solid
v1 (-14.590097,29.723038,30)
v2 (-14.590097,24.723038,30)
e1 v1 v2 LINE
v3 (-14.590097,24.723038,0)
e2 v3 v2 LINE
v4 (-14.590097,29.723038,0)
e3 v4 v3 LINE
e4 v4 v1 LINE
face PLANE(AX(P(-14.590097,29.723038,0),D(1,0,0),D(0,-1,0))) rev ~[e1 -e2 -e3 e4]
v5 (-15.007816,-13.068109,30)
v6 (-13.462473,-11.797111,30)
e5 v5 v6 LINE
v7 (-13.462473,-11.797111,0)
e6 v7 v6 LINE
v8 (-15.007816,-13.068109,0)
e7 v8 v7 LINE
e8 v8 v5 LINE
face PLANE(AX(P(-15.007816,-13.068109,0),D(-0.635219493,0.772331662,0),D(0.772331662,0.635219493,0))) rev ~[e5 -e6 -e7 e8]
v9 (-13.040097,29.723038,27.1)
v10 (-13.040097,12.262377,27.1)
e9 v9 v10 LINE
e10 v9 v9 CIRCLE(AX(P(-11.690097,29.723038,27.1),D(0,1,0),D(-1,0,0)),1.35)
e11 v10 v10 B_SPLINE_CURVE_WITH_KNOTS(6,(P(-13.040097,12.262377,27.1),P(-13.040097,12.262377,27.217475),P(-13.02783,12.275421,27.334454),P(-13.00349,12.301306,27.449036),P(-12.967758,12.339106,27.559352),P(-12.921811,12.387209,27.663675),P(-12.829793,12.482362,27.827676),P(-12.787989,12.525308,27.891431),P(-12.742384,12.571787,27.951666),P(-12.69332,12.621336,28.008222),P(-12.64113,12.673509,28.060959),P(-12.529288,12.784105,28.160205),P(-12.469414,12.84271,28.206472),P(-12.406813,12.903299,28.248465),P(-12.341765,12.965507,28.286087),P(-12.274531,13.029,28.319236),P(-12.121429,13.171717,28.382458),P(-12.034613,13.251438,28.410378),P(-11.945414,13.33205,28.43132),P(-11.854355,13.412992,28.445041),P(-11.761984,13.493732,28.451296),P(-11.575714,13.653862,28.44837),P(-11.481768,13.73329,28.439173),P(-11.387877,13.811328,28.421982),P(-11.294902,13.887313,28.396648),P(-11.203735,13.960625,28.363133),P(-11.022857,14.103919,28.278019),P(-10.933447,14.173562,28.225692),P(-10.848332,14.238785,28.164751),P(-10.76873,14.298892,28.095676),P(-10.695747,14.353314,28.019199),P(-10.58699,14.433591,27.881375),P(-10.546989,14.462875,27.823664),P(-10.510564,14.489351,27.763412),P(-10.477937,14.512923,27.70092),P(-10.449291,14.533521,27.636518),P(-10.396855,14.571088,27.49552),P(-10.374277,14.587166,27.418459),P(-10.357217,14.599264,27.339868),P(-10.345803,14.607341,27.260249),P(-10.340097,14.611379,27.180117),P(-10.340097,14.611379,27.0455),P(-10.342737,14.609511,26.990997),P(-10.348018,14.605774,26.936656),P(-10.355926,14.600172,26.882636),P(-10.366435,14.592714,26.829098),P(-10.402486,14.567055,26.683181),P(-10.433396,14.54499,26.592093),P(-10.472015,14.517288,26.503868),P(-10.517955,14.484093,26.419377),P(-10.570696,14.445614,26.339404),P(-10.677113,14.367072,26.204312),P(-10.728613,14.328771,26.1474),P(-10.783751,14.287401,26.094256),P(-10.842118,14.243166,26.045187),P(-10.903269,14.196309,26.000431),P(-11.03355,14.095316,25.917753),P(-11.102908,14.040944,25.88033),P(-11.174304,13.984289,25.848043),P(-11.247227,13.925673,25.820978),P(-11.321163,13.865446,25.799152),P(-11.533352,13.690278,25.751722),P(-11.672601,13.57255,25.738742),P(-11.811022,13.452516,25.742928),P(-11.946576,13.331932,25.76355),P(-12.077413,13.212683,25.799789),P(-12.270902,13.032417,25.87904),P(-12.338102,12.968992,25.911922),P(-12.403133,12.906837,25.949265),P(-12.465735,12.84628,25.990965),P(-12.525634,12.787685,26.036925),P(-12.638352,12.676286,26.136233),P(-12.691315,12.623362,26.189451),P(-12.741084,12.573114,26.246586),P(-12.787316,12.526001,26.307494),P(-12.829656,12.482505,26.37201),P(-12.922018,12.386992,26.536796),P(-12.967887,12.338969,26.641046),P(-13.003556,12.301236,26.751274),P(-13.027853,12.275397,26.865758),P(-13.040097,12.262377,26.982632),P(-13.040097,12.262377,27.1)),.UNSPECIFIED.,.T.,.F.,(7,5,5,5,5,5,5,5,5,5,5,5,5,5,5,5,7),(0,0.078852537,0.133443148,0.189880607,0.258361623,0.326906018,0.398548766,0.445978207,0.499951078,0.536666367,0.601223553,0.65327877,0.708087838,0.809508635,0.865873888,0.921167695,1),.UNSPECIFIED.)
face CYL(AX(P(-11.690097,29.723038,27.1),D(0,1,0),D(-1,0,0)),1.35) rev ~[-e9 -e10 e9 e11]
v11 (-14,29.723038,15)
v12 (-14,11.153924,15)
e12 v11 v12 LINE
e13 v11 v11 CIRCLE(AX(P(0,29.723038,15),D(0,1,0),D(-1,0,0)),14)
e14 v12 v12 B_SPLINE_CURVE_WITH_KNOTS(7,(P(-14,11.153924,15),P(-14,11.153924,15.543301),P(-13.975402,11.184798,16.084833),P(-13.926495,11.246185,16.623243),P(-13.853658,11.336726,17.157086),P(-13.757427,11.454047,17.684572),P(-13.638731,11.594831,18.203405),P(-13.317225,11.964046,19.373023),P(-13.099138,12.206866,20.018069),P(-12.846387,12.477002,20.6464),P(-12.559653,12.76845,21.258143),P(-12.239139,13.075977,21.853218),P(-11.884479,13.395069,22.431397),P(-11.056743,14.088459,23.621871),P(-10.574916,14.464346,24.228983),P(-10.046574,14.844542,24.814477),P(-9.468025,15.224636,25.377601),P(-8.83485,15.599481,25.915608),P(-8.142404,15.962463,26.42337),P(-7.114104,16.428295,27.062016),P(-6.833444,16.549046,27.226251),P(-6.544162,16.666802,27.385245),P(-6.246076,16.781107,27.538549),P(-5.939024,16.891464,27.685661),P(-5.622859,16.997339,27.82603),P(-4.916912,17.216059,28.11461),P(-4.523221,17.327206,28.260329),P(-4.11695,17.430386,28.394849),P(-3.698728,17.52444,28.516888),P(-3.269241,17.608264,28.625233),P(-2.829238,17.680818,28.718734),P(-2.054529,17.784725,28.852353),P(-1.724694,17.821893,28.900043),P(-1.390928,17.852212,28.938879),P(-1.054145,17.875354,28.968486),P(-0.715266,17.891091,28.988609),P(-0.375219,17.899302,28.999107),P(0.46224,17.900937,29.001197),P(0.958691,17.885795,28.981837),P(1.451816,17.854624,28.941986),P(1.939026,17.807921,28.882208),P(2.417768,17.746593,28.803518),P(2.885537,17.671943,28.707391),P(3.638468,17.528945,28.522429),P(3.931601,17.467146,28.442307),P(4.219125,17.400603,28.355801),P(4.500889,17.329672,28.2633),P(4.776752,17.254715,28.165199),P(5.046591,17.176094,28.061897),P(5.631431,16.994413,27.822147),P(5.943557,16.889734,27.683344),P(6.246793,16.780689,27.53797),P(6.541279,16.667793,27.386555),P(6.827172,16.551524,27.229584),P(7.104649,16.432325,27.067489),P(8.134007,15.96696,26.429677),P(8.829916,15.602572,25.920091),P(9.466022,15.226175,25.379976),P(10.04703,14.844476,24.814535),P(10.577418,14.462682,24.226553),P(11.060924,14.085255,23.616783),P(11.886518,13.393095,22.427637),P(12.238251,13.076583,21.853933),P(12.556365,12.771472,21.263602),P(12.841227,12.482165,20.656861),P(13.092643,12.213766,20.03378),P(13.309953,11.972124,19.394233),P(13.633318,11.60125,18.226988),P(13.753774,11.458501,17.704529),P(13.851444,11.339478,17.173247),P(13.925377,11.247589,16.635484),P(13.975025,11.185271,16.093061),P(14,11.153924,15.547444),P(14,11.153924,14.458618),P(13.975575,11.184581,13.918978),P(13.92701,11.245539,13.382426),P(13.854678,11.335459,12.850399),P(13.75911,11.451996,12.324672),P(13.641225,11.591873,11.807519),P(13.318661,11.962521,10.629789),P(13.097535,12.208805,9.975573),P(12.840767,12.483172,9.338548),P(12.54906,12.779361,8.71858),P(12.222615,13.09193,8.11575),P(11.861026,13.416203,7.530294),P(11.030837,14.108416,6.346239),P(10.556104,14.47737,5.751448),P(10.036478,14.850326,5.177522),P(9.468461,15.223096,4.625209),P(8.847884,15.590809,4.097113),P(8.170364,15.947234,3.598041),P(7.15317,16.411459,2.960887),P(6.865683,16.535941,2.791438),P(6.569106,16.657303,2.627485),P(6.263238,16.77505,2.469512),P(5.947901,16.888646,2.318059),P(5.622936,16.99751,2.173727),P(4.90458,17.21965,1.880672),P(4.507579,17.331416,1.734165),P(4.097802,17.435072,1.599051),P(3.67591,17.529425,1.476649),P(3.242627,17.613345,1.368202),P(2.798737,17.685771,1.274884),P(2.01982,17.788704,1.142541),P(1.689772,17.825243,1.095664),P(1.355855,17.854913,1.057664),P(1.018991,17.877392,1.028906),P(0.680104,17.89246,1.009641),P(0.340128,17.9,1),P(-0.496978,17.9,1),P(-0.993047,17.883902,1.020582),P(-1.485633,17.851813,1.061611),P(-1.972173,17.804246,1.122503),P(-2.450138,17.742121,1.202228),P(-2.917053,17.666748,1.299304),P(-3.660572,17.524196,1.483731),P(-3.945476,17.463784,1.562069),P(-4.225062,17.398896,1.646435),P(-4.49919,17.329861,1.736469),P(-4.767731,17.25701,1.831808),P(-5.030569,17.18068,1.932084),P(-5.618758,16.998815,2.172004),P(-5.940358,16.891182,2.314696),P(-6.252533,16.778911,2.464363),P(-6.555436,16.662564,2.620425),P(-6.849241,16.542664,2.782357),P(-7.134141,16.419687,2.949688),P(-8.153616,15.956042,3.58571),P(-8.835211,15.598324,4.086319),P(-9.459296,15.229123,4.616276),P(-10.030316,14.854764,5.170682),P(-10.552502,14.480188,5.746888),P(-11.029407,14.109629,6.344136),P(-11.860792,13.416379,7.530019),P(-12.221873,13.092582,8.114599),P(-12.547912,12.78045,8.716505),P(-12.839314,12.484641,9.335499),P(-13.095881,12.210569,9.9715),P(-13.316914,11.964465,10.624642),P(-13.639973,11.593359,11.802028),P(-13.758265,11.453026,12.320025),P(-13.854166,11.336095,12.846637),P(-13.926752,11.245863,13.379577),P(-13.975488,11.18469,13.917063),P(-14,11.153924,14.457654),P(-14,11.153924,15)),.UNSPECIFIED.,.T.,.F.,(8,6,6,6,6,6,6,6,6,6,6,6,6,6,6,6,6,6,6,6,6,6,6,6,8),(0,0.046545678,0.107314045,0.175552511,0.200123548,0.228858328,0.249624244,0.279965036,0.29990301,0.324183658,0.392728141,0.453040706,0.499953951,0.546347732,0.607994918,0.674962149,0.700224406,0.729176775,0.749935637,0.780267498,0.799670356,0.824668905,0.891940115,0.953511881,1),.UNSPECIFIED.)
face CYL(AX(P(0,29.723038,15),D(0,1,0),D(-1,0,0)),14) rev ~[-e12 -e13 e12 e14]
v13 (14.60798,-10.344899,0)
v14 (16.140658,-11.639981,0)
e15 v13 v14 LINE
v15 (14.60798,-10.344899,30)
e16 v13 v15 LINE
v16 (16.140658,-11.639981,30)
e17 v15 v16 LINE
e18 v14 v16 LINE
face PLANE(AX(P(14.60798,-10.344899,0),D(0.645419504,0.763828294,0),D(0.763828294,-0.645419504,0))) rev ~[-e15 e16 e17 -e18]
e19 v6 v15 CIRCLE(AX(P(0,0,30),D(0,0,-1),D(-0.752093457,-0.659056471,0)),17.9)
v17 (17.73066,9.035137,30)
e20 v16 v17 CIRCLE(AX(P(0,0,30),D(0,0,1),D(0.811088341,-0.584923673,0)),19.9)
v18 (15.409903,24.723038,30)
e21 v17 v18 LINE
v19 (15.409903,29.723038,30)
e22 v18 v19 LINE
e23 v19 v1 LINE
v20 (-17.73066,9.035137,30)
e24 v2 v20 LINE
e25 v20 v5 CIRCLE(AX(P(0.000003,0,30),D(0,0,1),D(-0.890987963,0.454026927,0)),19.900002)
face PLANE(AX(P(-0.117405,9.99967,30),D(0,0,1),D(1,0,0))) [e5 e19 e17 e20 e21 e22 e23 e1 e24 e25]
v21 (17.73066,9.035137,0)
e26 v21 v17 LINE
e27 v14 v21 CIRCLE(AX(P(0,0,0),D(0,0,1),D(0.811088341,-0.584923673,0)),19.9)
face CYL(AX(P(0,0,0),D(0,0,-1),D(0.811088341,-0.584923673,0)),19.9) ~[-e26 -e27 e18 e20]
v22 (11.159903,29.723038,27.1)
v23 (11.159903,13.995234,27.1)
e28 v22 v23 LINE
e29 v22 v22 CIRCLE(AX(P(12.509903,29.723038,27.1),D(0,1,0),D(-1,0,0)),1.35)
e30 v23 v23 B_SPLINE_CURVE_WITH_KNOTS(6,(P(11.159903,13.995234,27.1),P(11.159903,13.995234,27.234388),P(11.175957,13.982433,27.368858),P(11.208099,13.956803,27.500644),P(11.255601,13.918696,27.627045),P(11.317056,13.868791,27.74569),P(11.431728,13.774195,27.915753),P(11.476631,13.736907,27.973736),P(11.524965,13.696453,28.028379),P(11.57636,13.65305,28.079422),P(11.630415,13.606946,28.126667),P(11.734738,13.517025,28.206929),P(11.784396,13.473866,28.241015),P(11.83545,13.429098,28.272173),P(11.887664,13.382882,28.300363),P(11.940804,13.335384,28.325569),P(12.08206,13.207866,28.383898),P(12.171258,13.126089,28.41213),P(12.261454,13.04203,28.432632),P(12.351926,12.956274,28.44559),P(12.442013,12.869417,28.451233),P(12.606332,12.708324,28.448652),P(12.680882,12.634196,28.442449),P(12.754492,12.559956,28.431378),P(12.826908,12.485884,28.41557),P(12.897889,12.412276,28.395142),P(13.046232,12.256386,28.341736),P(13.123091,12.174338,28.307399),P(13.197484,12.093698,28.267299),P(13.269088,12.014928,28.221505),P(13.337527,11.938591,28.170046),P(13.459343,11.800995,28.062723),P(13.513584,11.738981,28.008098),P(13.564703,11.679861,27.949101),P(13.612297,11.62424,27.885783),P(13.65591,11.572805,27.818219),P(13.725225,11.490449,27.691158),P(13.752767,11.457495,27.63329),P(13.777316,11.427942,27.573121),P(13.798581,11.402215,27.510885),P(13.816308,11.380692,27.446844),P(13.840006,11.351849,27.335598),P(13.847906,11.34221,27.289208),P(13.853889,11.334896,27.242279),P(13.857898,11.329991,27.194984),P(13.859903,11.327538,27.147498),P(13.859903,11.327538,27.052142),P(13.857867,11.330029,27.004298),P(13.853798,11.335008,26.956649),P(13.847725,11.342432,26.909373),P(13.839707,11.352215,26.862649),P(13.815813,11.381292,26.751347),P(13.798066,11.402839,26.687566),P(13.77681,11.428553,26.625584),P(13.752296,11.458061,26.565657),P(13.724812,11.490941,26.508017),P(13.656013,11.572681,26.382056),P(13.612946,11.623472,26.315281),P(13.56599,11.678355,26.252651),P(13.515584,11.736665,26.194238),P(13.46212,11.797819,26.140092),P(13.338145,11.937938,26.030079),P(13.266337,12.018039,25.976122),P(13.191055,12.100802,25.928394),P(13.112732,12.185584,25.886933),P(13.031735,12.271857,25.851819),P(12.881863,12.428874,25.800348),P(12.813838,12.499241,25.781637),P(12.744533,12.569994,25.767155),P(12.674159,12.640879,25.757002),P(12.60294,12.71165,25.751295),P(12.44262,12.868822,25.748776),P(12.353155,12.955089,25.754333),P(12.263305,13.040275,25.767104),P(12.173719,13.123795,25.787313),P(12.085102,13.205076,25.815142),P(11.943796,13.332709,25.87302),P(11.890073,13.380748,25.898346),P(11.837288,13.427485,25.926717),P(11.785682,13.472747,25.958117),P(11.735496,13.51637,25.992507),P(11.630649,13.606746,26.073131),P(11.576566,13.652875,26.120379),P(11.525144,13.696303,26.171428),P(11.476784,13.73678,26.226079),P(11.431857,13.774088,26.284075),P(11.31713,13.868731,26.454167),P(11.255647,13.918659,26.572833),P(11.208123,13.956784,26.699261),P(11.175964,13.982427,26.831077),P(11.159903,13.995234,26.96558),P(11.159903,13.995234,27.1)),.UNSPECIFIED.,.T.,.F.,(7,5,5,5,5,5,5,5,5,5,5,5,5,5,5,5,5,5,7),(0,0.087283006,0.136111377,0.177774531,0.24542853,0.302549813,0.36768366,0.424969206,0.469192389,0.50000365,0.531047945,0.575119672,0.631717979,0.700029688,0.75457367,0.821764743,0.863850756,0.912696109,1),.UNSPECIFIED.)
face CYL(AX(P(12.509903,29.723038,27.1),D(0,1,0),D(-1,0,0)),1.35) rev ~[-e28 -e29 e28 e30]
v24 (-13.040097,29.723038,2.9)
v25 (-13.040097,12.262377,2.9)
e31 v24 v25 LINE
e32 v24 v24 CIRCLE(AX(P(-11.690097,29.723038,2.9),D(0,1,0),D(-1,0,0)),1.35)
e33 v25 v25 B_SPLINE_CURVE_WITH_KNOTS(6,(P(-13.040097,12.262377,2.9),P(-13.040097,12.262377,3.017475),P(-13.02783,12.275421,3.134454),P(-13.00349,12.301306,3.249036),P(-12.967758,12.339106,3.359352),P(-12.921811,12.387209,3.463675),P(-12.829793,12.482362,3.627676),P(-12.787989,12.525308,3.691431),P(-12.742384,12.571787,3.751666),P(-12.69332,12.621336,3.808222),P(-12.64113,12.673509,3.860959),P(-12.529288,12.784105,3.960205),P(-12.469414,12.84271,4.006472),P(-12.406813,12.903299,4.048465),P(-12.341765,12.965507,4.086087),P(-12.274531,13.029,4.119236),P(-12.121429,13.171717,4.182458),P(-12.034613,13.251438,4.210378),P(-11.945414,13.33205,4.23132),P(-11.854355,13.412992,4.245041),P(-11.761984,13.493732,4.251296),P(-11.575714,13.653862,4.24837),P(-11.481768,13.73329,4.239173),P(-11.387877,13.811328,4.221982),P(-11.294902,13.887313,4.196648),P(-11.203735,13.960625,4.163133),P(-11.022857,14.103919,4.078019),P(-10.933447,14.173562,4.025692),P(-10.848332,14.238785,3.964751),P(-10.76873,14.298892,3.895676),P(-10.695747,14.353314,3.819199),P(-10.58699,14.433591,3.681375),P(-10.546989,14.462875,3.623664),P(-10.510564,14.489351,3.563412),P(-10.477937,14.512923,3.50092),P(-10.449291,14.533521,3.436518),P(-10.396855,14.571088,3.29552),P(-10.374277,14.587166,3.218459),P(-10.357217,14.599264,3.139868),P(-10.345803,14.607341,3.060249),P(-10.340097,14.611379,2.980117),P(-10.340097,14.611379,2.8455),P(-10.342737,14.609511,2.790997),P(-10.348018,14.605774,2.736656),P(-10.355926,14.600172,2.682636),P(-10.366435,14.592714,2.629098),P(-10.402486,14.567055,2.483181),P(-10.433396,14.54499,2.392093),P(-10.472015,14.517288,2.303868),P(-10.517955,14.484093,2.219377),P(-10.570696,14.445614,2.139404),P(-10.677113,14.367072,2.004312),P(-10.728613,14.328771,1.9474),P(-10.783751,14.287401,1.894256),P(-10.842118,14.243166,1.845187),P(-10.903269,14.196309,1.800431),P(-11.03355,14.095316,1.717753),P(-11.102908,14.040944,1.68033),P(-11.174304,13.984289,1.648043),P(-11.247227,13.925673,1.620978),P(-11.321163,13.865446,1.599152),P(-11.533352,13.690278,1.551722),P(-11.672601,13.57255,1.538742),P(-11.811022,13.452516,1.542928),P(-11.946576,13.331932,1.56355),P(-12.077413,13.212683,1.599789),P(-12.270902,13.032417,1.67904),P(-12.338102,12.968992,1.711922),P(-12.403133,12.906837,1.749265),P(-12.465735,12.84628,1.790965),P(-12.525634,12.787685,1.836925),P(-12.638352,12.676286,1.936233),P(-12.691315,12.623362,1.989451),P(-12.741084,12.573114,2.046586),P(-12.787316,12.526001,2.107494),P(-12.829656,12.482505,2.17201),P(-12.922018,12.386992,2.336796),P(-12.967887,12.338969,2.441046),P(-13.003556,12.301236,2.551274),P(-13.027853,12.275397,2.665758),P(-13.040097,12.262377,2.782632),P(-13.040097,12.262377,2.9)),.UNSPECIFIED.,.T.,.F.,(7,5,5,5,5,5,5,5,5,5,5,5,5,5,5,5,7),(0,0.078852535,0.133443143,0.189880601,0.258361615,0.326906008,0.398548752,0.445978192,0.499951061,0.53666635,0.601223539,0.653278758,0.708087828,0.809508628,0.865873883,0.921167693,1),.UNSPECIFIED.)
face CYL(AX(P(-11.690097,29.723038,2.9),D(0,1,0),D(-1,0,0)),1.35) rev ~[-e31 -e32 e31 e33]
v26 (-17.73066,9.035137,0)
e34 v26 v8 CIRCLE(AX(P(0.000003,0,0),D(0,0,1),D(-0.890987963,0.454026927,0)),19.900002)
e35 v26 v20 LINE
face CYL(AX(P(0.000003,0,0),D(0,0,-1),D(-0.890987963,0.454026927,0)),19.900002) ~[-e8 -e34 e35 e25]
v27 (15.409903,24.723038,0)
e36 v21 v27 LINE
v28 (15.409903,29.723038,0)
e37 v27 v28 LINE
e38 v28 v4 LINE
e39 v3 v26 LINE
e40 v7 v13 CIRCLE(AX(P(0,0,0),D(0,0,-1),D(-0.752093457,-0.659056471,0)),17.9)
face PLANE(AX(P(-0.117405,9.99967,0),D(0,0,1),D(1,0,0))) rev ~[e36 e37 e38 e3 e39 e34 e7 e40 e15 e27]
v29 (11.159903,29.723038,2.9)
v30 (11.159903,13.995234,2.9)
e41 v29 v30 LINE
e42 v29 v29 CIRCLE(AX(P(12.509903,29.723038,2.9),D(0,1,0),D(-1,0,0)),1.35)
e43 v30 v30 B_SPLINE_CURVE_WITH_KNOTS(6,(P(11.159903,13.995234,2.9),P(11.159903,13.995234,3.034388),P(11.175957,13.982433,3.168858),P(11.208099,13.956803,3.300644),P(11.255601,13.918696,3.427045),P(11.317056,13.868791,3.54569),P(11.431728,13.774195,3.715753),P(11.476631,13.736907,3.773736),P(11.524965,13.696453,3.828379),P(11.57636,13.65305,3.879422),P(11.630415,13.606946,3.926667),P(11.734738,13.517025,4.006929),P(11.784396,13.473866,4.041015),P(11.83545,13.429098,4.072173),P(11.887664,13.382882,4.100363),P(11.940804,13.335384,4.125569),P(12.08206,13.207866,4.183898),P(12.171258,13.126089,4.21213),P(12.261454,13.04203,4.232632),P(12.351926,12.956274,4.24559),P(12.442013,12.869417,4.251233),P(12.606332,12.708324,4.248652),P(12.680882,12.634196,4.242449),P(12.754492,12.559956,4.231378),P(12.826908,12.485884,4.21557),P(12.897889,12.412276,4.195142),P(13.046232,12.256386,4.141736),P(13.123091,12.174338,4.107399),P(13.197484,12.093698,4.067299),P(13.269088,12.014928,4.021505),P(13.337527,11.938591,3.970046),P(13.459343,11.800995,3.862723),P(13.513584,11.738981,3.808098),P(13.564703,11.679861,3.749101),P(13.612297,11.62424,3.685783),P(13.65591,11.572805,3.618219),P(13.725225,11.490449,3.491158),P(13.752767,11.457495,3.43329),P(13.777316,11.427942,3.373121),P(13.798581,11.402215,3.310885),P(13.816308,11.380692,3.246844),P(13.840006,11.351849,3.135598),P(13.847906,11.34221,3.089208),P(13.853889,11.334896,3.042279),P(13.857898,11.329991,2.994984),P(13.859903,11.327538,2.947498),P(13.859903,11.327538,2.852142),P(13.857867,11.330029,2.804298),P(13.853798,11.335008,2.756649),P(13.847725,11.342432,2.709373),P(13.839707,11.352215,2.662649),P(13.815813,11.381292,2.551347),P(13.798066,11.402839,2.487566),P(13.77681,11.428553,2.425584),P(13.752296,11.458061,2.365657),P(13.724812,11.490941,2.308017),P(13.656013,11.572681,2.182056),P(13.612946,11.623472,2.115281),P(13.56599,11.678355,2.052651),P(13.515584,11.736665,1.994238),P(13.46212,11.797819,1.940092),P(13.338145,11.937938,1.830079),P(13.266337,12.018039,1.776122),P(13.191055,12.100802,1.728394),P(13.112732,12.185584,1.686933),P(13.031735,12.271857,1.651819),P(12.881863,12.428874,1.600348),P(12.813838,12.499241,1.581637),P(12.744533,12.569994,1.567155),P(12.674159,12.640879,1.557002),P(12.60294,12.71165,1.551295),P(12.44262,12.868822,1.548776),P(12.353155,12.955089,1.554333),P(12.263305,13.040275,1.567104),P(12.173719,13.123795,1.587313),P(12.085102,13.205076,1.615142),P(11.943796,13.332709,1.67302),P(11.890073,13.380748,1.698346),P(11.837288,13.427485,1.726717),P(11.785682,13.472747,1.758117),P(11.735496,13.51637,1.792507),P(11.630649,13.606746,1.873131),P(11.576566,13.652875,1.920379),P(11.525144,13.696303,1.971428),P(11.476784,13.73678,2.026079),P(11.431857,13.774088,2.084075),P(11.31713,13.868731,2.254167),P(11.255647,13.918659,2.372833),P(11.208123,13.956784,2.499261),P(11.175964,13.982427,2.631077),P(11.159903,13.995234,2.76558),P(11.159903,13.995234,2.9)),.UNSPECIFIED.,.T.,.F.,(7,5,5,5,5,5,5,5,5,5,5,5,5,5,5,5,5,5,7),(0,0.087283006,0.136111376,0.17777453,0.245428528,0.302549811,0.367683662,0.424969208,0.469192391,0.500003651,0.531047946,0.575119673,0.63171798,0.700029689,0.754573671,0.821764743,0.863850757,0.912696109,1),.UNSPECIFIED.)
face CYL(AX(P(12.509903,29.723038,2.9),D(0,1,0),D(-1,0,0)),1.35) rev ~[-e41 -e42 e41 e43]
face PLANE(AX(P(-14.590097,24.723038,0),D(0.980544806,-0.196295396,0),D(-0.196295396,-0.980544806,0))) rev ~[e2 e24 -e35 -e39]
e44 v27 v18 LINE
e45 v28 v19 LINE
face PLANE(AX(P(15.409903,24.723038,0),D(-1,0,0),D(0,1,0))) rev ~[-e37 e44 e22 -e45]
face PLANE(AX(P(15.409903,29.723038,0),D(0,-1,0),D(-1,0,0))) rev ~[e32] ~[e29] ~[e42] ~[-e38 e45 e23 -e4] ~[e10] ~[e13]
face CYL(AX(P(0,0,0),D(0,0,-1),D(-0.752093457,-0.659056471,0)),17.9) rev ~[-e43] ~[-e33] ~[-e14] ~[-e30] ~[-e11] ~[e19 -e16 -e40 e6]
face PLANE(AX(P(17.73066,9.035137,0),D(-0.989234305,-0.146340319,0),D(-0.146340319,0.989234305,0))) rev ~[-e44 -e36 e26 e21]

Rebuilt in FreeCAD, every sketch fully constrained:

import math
import FreeCAD as App
import Part
import Sketcher

V = App.Vector

doc = App.newDocument("Part")
body = doc.addObject("PartDesign::Body", "Body")

# Sketch on XY plane
sketch1 = body.newObject("Sketcher::SketchObject", "Sketch")
sketch1.AttachmentSupport = (doc.getObject("XY_Plane"), [""])
sketch1.MapMode = "FlatFace"
sketch1.addGeometry([
    Part.ArcOfCircle(Part.Circle(V(0, 0, 0), V(0, 0, 1), 17.9), math.radians(-35), math.radians(221)),  # 0
    Part.LineSegment(V(14.6, -10.3, 0), V(16.1, -11.6, 0)),  # 1
    Part.ArcOfCircle(Part.Circle(V(0, 0, 0), V(0, 0, 1), 19.9), math.radians(-36), math.radians(27)),  # 2
    Part.LineSegment(V(17.7, 9, 0), V(15.4, 24.7, 0)),  # 3
    Part.LineSegment(V(15.4, 24.7, 0), V(15.4, 29.7, 0)),  # 4
    Part.LineSegment(V(15.4, 29.7, 0), V(-14.6, 29.7, 0)),  # 5
    Part.LineSegment(V(-14.6, 29.7, 0), V(-14.6, 24.7, 0)),  # 6
    Part.LineSegment(V(-14.6, 24.7, 0), V(-17.7, 9, 0)),  # 7
    Part.ArcOfCircle(Part.Circle(V(0, 0, 0), V(0, 0, 1), 19.9), math.radians(153), math.radians(221)),  # 8
    Part.LineSegment(V(-15, -13.1, 0), V(-13.5, -11.8, 0)),  # 9
], False)
sketch1.addConstraint([
    Sketcher.Constraint("Coincident", 0, 1, 1, 1),
    Sketcher.Constraint("Coincident", 1, 2, 2, 1),
    Sketcher.Constraint("Coincident", 2, 2, 3, 1),
    Sketcher.Constraint("Coincident", 3, 2, 4, 1),
    Sketcher.Constraint("Coincident", 4, 2, 5, 1),
    Sketcher.Constraint("Coincident", 5, 2, 6, 1),
    Sketcher.Constraint("Coincident", 6, 2, 7, 1),
    Sketcher.Constraint("Coincident", 7, 2, 8, 1),
    Sketcher.Constraint("Coincident", 8, 2, 9, 1),
    Sketcher.Constraint("Coincident", 9, 2, 0, 2),
    Sketcher.Constraint("Vertical", 4),
    Sketcher.Constraint("Horizontal", 5),
    Sketcher.Constraint("Vertical", 6),
    Sketcher.Constraint("Coincident", 0, 3, -1, 1),
    Sketcher.Constraint("Coincident", 2, 3, -1, 1),
    Sketcher.Constraint("Coincident", 8, 3, -1, 1),
    Sketcher.Constraint("Symmetric", 2, 2, 7, 2, -2),
    Sketcher.Constraint("Horizontal", 3, 2, 6, 2),
    Sketcher.Constraint("Radius", 0, 17.9),
    Sketcher.Constraint("Radius", 2, 19.9),
    Sketcher.Constraint("DistanceX", 5, 2, 5, 1, 30.0),
    Sketcher.Constraint("DistanceY", 4, 1, 4, 2, 5.0),
    Sketcher.Constraint("DistanceY", 8, 2, 9, 2, 1.270998),
    Sketcher.Constraint("DistanceY", 0, 1, -1, 1, 10.344899),
    Sketcher.Constraint("DistanceY", 2, 2, 3, 2, 15.687901),
    Sketcher.Constraint("DistanceX", 8, 3, 3, 2, 15.4099),
    Sketcher.Constraint("Distance", 3, 15.85863),
    Sketcher.Constraint("DistanceY", 1, 2, -1, 1, 11.639981),
    Sketcher.Constraint("DistanceY", 8, 2, -1, 1, 13.068109),
])
pad1 = body.newObject("PartDesign::Pad", "Pad")
pad1.Profile = sketch1
pad1.Length = 30

# Sketch on XZ plane
sketch2 = body.newObject("Sketcher::SketchObject", "Sketch001")
sketch2.AttachmentSupport = (doc.getObject("XZ_Plane"), [""])
sketch2.MapMode = "FlatFace"
sketch2.AttachmentOffset = App.Placement(V(0, 0, -29.723038), App.Rotation())
sketch2.addGeometry([
    Part.Circle(V(12.5, 27.1, 0), V(0, 0, 1), 1.4),  # 0
    Part.Circle(V(12.5, 2.9, 0), V(0, 0, 1), 1.4),  # 1
    Part.Circle(V(-11.7, 2.9, 0), V(0, 0, 1), 1.4),  # 2
    Part.Circle(V(-11.7, 27.1, 0), V(0, 0, 1), 1.4),  # 3
    Part.Circle(V(0, 15, 0), V(0, 0, 1), 14),  # 4
], False)
sketch2.addConstraint([
    Sketcher.Constraint("Equal", 0, 1),
    Sketcher.Constraint("Equal", 1, 2),
    Sketcher.Constraint("Equal", 2, 3),
    Sketcher.Constraint("PointOnObject", 4, 3, -2),
    Sketcher.Constraint("Horizontal", 1, 3, 2, 3),
    Sketcher.Constraint("Horizontal", 0, 3, 3, 3),
    Sketcher.Constraint("Vertical", 0, 3, 1, 3),
    Sketcher.Constraint("Vertical", 2, 3, 3, 3),
    Sketcher.Constraint("Diameter", 4, 28.0),
    Sketcher.Constraint("Diameter", 0, 2.7),
    Sketcher.Constraint("DistanceY", -1, 1, 4, 3, 15.0),
    Sketcher.Constraint("DistanceY", -1, 1, 0, 3, 27.1),
    Sketcher.Constraint("DistanceY", -1, 1, 1, 3, 2.9),
    Sketcher.Constraint("DistanceX", 2, 3, 1, 3, 24.2),
    Sketcher.Constraint("DistanceX", -1, 1, 0, 3, 12.509903),
])
pocket1 = body.newObject("PartDesign::Pocket", "Pocket")
pocket1.Profile = sketch2
pocket1.Length = 25
pocket1.Reversed = True

doc.recompute()
